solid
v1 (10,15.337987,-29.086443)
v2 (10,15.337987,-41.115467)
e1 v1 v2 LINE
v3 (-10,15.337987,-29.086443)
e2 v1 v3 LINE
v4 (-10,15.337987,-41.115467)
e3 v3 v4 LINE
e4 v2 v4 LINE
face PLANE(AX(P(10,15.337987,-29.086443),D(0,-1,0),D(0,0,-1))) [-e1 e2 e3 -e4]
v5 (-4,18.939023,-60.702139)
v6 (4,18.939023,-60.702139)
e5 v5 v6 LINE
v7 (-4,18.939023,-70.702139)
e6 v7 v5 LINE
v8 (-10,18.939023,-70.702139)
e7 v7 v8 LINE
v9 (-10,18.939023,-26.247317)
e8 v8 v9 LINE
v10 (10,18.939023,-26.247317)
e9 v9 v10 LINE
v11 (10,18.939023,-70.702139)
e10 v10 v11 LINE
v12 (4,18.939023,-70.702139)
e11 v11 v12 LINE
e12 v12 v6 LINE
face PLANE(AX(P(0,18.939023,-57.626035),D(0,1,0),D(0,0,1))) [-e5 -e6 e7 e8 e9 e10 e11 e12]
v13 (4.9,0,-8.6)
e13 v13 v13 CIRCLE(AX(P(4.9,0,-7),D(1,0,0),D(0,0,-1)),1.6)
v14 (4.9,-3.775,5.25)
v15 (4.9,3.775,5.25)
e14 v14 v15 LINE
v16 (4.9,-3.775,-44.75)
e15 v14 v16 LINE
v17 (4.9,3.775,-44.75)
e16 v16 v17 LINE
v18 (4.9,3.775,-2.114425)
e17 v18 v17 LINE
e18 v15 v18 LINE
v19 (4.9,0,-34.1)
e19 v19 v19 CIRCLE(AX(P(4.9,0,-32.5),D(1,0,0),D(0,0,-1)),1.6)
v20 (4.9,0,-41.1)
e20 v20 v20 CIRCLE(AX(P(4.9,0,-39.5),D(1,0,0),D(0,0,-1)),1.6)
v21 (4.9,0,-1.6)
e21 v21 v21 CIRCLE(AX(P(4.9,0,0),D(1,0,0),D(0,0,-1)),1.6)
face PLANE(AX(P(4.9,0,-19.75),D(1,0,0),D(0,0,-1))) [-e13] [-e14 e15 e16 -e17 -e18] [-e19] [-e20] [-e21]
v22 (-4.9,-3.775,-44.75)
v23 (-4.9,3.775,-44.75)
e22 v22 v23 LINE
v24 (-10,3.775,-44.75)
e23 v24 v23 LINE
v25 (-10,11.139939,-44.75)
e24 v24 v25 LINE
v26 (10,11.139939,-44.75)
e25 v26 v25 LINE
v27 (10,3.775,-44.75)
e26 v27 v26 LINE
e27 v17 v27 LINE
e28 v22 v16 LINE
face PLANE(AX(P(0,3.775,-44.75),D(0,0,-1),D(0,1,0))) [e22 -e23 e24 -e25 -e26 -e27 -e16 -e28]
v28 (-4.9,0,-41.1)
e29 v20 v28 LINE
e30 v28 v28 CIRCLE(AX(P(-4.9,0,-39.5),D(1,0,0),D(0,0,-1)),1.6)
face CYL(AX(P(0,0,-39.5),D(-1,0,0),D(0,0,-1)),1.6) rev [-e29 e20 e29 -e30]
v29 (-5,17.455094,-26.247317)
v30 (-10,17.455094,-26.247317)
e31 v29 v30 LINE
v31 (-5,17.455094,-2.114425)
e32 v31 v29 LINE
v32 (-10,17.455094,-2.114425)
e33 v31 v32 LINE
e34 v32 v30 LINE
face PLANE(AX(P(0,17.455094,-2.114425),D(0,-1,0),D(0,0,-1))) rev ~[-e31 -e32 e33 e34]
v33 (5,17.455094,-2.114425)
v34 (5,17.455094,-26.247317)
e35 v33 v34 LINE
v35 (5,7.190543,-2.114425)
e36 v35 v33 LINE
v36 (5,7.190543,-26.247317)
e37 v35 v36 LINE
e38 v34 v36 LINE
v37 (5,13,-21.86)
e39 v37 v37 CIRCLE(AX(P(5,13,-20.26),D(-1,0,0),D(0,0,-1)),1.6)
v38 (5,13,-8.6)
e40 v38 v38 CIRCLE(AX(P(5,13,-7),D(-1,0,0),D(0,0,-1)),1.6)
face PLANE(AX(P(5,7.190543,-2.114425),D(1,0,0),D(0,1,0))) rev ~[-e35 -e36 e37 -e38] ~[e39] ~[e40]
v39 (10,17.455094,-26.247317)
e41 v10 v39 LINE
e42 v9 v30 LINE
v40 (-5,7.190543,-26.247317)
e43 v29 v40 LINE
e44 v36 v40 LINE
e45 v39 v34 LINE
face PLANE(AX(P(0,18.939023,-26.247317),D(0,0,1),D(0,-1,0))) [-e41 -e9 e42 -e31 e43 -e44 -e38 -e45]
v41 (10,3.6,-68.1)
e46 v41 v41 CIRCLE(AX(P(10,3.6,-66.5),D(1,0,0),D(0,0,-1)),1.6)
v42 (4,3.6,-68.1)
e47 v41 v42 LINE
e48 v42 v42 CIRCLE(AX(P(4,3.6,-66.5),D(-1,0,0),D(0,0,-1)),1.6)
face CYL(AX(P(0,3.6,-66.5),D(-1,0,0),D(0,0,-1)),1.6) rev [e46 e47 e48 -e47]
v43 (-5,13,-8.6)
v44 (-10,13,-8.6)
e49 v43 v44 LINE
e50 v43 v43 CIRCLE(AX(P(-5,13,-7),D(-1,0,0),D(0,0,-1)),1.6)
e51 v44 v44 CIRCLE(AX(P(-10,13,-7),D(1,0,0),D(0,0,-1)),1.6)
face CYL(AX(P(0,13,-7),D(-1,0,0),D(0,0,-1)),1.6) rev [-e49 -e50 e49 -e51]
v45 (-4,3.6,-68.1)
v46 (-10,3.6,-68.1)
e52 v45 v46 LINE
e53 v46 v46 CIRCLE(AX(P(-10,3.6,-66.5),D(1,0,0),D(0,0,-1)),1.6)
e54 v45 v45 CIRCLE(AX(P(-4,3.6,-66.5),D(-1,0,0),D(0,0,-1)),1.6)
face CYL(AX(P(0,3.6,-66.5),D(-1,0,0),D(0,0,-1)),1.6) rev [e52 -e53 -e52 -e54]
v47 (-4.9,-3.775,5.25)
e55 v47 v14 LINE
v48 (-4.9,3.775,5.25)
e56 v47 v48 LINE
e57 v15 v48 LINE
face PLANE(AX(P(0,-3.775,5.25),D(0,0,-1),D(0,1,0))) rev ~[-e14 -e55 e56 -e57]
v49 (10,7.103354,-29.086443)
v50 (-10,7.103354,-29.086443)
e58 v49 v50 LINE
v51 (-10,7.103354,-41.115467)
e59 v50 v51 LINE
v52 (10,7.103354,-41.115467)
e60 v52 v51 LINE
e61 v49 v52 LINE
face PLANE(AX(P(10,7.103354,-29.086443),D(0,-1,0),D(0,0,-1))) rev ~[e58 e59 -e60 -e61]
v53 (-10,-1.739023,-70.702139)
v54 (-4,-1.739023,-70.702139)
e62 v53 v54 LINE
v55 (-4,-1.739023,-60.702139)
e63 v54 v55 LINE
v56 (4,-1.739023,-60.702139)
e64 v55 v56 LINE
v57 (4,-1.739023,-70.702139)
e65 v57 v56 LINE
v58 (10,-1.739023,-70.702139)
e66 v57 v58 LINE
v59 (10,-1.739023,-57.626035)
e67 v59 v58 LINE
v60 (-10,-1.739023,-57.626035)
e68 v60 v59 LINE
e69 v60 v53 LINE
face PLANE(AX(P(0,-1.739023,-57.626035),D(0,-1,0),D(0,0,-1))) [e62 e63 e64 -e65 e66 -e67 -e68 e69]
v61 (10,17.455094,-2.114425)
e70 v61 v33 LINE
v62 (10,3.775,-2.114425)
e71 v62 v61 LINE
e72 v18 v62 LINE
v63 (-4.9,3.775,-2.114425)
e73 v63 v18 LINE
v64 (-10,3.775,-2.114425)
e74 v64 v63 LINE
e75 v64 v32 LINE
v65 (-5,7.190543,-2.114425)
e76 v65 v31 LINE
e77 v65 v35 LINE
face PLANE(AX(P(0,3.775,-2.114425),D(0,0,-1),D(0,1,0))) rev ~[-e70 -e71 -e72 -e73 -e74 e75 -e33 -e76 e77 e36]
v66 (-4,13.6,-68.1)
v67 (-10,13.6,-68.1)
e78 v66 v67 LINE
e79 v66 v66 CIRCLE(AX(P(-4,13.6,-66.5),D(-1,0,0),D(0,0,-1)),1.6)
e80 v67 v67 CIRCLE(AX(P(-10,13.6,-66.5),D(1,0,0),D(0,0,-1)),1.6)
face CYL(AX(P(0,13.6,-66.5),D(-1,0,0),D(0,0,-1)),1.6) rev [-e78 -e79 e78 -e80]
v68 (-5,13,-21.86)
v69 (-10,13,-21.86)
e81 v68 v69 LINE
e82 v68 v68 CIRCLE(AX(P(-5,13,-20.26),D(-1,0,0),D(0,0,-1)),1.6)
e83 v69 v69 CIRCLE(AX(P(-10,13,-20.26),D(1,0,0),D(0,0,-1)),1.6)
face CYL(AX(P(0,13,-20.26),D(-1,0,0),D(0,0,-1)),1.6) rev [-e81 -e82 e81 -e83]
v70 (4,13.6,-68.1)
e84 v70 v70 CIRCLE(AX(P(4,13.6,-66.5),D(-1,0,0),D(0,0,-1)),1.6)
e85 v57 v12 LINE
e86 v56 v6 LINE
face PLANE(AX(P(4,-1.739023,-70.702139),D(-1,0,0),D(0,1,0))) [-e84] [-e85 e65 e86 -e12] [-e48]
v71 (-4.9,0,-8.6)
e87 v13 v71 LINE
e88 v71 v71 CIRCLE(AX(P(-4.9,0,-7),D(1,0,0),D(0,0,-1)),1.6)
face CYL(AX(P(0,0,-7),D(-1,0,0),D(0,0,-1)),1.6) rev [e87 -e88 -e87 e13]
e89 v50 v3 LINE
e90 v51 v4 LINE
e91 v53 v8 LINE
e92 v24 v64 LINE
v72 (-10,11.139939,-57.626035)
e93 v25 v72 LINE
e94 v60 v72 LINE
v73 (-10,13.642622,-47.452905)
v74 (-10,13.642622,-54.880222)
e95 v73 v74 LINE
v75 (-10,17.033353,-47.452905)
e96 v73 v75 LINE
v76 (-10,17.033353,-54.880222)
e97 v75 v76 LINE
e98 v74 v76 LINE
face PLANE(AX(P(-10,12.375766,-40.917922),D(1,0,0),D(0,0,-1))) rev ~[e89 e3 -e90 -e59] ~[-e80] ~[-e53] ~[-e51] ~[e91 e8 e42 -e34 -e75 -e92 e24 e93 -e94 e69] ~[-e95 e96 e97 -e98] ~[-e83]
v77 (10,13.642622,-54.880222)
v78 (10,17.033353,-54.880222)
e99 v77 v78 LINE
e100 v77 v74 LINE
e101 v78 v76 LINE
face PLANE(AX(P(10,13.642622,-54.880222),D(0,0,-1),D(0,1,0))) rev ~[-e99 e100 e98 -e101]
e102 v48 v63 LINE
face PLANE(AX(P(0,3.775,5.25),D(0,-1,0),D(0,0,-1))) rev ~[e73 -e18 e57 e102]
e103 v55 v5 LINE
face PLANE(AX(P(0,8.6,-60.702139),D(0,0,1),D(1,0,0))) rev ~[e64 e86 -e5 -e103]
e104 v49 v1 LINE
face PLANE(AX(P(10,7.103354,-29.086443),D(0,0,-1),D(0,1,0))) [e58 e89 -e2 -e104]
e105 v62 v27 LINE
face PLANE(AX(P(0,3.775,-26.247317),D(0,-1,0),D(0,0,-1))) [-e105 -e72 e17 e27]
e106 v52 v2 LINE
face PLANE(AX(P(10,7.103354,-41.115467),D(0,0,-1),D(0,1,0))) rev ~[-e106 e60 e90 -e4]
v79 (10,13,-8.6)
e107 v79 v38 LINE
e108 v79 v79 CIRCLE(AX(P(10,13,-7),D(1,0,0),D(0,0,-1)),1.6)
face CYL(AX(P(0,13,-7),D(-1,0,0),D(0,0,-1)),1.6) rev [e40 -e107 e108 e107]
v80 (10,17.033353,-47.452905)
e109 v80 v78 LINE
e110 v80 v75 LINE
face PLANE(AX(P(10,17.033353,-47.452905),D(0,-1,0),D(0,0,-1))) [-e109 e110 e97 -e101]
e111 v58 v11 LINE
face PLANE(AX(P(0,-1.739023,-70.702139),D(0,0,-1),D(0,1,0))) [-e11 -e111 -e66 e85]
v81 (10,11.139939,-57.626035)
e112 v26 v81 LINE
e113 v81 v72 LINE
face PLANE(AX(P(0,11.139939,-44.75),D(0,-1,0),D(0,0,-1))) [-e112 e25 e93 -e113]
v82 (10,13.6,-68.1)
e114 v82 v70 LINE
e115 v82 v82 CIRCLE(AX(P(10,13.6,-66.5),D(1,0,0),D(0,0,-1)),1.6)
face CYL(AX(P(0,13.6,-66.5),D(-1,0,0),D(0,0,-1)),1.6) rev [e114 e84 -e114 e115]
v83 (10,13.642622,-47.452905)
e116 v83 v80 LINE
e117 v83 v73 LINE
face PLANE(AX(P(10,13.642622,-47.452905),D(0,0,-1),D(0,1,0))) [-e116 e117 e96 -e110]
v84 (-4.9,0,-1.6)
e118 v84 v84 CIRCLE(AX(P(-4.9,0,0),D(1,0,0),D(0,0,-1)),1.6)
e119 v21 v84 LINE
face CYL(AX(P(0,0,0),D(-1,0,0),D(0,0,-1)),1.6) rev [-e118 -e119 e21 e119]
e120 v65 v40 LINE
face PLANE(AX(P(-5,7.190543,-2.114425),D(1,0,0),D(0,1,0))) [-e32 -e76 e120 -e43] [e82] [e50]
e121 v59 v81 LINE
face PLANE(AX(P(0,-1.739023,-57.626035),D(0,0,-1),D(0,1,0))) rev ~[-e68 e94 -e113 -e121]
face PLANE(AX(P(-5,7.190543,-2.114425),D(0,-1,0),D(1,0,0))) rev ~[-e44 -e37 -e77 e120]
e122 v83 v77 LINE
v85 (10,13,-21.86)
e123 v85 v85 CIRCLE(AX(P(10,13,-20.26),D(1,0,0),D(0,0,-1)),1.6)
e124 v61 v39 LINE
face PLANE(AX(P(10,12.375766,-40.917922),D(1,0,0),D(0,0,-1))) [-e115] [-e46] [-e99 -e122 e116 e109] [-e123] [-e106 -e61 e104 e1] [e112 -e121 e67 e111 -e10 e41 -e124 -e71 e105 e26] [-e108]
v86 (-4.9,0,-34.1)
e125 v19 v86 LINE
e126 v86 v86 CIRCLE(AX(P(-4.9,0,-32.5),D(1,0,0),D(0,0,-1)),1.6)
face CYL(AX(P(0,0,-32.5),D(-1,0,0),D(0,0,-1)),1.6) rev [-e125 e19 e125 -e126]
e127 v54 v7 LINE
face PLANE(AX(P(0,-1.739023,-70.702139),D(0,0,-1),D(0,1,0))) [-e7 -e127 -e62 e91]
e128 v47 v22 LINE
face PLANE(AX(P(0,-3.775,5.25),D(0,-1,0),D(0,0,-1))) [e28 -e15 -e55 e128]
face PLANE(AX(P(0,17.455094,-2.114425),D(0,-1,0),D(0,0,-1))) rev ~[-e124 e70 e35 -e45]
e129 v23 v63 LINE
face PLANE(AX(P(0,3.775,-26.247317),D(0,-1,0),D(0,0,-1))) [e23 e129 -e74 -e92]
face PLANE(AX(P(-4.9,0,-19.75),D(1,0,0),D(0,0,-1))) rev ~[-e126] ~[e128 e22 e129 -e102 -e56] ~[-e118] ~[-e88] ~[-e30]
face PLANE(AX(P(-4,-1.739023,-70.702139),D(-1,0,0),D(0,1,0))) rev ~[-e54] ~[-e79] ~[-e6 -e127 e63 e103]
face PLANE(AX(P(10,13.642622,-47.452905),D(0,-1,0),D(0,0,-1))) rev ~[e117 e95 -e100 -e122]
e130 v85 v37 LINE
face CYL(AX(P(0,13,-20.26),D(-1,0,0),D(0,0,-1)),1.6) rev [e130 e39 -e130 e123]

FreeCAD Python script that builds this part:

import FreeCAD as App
import Part
import Sketcher
from FreeCAD import Vector
Q = App.Units.Quantity


def add_polygon(sketch, points):
    """Adds a closed chain of lines whose ends are joined by coincident constraints."""
    first, n = sketch.GeometryCount, len(points)
    for a, b in zip(points, points[1:] + points[:1]):
        sketch.addGeometry(Part.LineSegment(App.Vector(*a, 0), App.Vector(*b, 0)), False)
    for i in range(n):
        sketch.addConstraint(Sketcher.Constraint("Coincident", first + i, 2, first + (i + 1) % n, 1))

doc = App.newDocument("Part")
body = doc.addObject("PartDesign::Body", "Body")

# Sketch on YZ plane
sketch1 = doc.addObject("Sketcher::SketchObject", "Sketch")
body.addObject(sketch1)
sketch1.AttachmentSupport = (doc.YZ_Plane, [""])
sketch1.MapMode = "FlatFace"
add_polygon(sketch1, [(3.8, 5.2), (-3.8, 5.2), (-3.8, -44.8), (3.8, -44.8)])  # lines 0-3
sketch1.addGeometry(Part.Circle(Vector(0, 0, 0), Vector(0, 0, 1), 1.6), False)  # 4
sketch1.addGeometry(Part.Circle(Vector(0, -7, 0), Vector(0, 0, 1), 1.6), False)  # 5
sketch1.addGeometry(Part.Circle(Vector(0, -32.5, 0), Vector(0, 0, 1), 1.6), False)  # 6
sketch1.addGeometry(Part.Circle(Vector(0, -39.5, 0), Vector(0, 0, 1), 1.6), False)  # 7
sketch1.addConstraint([
    Sketcher.Constraint("Horizontal", 0),
    Sketcher.Constraint("Vertical", 1),
    Sketcher.Constraint("Horizontal", 2),
    Sketcher.Constraint("Vertical", 3),
    Sketcher.Constraint("Coincident", 4, 3, -1, 1),
    Sketcher.Constraint("Equal", 4, 5),
    Sketcher.Constraint("Equal", 5, 6),
    Sketcher.Constraint("Equal", 6, 7),
    Sketcher.Constraint("PointOnObject", 5, 3, -2),
    Sketcher.Constraint("PointOnObject", 6, 3, -2),
    Sketcher.Constraint("PointOnObject", 7, 3, -2),
    Sketcher.Constraint("Diameter", 4, Q("3.2 mm")),
    Sketcher.Constraint("DistanceY", 1, 2, 1, 1, Q("50 mm")),
    Sketcher.Constraint("DistanceY", 5, 3, -1, 1, Q("7 mm")),
    Sketcher.Constraint("DistanceY", 7, 3, 6, 3, Q("7 mm")),
    Sketcher.Constraint("DistanceX", 0, 2, 0, 1, Q("7.55 mm")),
    Sketcher.Constraint("DistanceY", 6, 3, -1, 1, Q("32.5 mm")),
    Sketcher.Constraint("DistanceY", -1, 1, 0, 2, Q("5.25 mm")),
    Sketcher.Constraint("DistanceX", 0, 2, -1, 1, Q("3.775 mm")),
])
pad1 = doc.addObject("PartDesign::Pad", "Pad")
body.addObject(pad1)
pad1.Profile = sketch1
pad1.Length = 9.8
pad1.Midplane = True

# Sketch on YZ plane
sketch2 = doc.addObject("Sketcher::SketchObject", "Sketch001")
body.addObject(sketch2)
sketch2.AttachmentSupport = (doc.YZ_Plane, [""])
sketch2.MapMode = "FlatFace"
add_polygon(sketch2, [(17.5, -2.1), (3.8, -2.1), (3.8, -26.2), (17.5, -26.2)])  # lines 0-3
sketch2.addGeometry(Part.Circle(Vector(13, -7, 0), Vector(0, 0, 1), 1.6), False)  # 4
sketch2.addGeometry(Part.Circle(Vector(13, -20.3, 0), Vector(0, 0, 1), 1.6), False)  # 5
sketch2.addConstraint([
    Sketcher.Constraint("Horizontal", 0),
    Sketcher.Constraint("Vertical", 1),
    Sketcher.Constraint("Horizontal", 2),
    Sketcher.Constraint("Vertical", 3),
    Sketcher.Constraint("Equal", 4, 5),
    Sketcher.Constraint("Vertical", 4, 3, 5, 3),
    Sketcher.Constraint("Diameter", 4, Q("3.2 mm")),
    Sketcher.Constraint("DistanceX", -1, 1, 4, 3, Q("13 mm")),
    Sketcher.Constraint("DistanceY", 4, 3, -1, 1, Q("7 mm")),
    Sketcher.Constraint("DistanceY", 5, 3, -1, 1, Q("20.26 mm")),
    Sketcher.Constraint("DistanceX", -1, 1, 0, 2, Q("3.775 mm")),
    Sketcher.Constraint("DistanceY", 1, 2, 1, 1, Q("24.132892 mm")),
    Sketcher.Constraint("DistanceX", 0, 2, 0, 1, Q("13.680094 mm")),
    Sketcher.Constraint("DistanceY", 0, 2, -1, 1, Q("2.114425 mm")),
])
pad2 = doc.addObject("PartDesign::Pad", "Pad001")
body.addObject(pad2)
pad2.Profile = sketch2
pad2.Length = 20
pad2.Midplane = True

# Sketch on XY plane
sketch3 = doc.addObject("Sketcher::SketchObject", "Sketch002")
body.addObject(sketch3)
sketch3.AttachmentSupport = (doc.XY_Plane, [""])
sketch3.MapMode = "FlatFace"
sketch3.AttachmentOffset = App.Placement(Vector(0, 0, -2.114425), App.Rotation())
add_polygon(sketch3, [(-5, 17), (-5, 7), (5, 7), (5, 17)])  # lines 0-3
sketch3.addConstraint([
    Sketcher.Constraint("Vertical", 0),
    Sketcher.Constraint("Horizontal", 1),
    Sketcher.Constraint("Vertical", 2),
    Sketcher.Constraint("Horizontal", 3),
    Sketcher.Constraint("DistanceX", 1, 1, 1, 2, Q("10 mm")),
    Sketcher.Constraint("DistanceX", 0, 2, -1, 1, Q("5 mm")),
    Sketcher.Constraint("DistanceY", 0, 2, 0, 1, Q("10.264551 mm")),
    Sketcher.Constraint("DistanceY", -1, 1, 0, 2, Q("7.190543 mm")),
])
pocket1 = doc.addObject("PartDesign::Pocket", "Pocket")
body.addObject(pocket1)
pocket1.Profile = sketch3
pocket1.Type = "ThroughAll"
body2 = doc.addObject("PartDesign::Body", "Body001")

# Sketch on YZ plane
sketch4 = doc.addObject("Sketcher::SketchObject", "Sketch003")
body2.addObject(sketch4)
sketch4.AttachmentSupport = (doc.getObject("YZ_Plane001"), [""])
sketch4.MapMode = "FlatFace"
add_polygon(sketch4, [(18.9, -57.6), (-1.7, -57.6), (-1.7, -70.7), (18.9, -70.7)])  # lines 0-3
sketch4.addGeometry(Part.Circle(Vector(3.6, -66.5, 0), Vector(0, 0, 1), 1.6), False)  # 4
sketch4.addGeometry(Part.Circle(Vector(13.6, -66.5, 0), Vector(0, 0, 1), 1.6), False)  # 5
sketch4.addConstraint([
    Sketcher.Constraint("Horizontal", 0),
    Sketcher.Constraint("Vertical", 1),
    Sketcher.Constraint("Horizontal", 2),
    Sketcher.Constraint("Vertical", 3),
    Sketcher.Constraint("Equal", 4, 5),
    Sketcher.Constraint("Horizontal", 4, 3, 5, 3),
    Sketcher.Constraint("Diameter", 4, Q("3.2 mm")),
    Sketcher.Constraint("DistanceX", 4, 3, 5, 3, Q("10 mm")),
    Sketcher.Constraint("DistanceX", -1, 1, 4, 3, Q("3.6 mm")),
    Sketcher.Constraint("DistanceY", 4, 3, -1, 1, Q("66.5 mm")),
    Sketcher.Constraint("DistanceX", 0, 2, 0, 1, Q("20.678046 mm")),
    Sketcher.Constraint("DistanceY", 1, 2, 1, 1, Q("13.076103 mm")),
    Sketcher.Constraint("DistanceY", 1, 2, -1, 1, Q("70.702139 mm")),
    Sketcher.Constraint("DistanceX", 0, 2, -1, 1, Q("1.739023 mm")),
])
pad3 = doc.addObject("PartDesign::Pad", "Pad002")
body2.addObject(pad3)
pad3.Profile = sketch4
pad3.Length = 20
pad3.Midplane = True

# Sketch on XY plane
sketch5 = doc.addObject("Sketcher::SketchObject", "Sketch004")
body2.addObject(sketch5)
sketch5.AttachmentSupport = (doc.getObject("XY_Plane001"), [""])
sketch5.MapMode = "FlatFace"
sketch5.AttachmentOffset = App.Placement(Vector(0, 0, -70.702139), App.Rotation())
add_polygon(sketch5, [(-4, 19), (-4, -2), (4, -2), (4, 19)])  # lines 0-3
sketch5.addConstraint([
    Sketcher.Constraint("Vertical", 0),
    Sketcher.Constraint("Horizontal", 1),
    Sketcher.Constraint("Vertical", 2),
    Sketcher.Constraint("Horizontal", 3),
    Sketcher.Constraint("DistanceX", 1, 1, 1, 2, Q("8 mm")),
    Sketcher.Constraint("DistanceX", 0, 2, -1, 1, Q("4 mm")),
    Sketcher.Constraint("DistanceY", 0, 2, 0, 1, Q("20.678046 mm")),
    Sketcher.Constraint("DistanceY", 0, 2, -1, 1, Q("1.739023 mm")),
])
pocket2 = doc.addObject("PartDesign::Pocket", "Pocket001")
body2.addObject(pocket2)
pocket2.Profile = sketch5
pocket2.Length = 10
pocket2.Reversed = True
body.AllowCompound = True
doc.recompute()

boolean = doc.addObject("PartDesign::Boolean", "Boolean")
body.addObject(boolean)
boolean.Type = "Fuse"
boolean.addObjects([body2])

# Sketch on YZ plane
sketch6 = doc.addObject("Sketcher::SketchObject", "Sketch005")
body.addObject(sketch6)
sketch6.AttachmentSupport = (doc.YZ_Plane, [""])
sketch6.MapMode = "FlatFace"
add_polygon(sketch6, [(19, -58), (19, -26), (4, -26), (4, -45), (11, -45), (11, -58)])  # lines 0-5
sketch6.addConstraint([
    Sketcher.Constraint("Vertical", 0),
    Sketcher.Constraint("Horizontal", 1),
    Sketcher.Constraint("Vertical", 2),
    Sketcher.Constraint("Horizontal", 3),
    Sketcher.Constraint("Vertical", 4),
    Sketcher.Constraint("Horizontal", 5),
    Sketcher.Constraint("DistanceY", 2, 2, -1, 1, Q("44.75 mm")),
    Sketcher.Constraint("DistanceX", -1, 1, 1, 2, Q("3.775 mm")),
    Sketcher.Constraint("DistanceX", 3, 1, 3, 2, Q("7.364939 mm")),
    Sketcher.Constraint("DistanceY", 0, 1, 0, 2, Q("31.378718 mm")),
    Sketcher.Constraint("DistanceX", 1, 2, 1, 1, Q("15.164023 mm")),
    Sketcher.Constraint("DistanceY", 2, 2, 2, 1, Q("18.502683 mm")),
])
pad4 = doc.addObject("PartDesign::Pad", "Pad003")
body.addObject(pad4)
pad4.Profile = sketch6
pad4.Length = 20
pad4.Midplane = True

# Sketch on YZ plane
sketch7 = doc.addObject("Sketcher::SketchObject", "Sketch006")
body.addObject(sketch7)
sketch7.AttachmentSupport = (doc.YZ_Plane, [""])
sketch7.MapMode = "FlatFace"
sketch7.AttachmentOffset = App.Placement(Vector(0, 0, 10), App.Rotation())
add_polygon(sketch7, [(15.3, -29.1), (7.1, -29.1), (7.1, -41.1), (15.3, -41.1)])  # lines 0-3
add_polygon(sketch7, [(17, -47.5), (13.6, -47.5), (13.6, -54.9), (17, -54.9)])  # lines 4-7
sketch7.addConstraint([
    Sketcher.Constraint("Horizontal", 0),
    Sketcher.Constraint("Vertical", 1),
    Sketcher.Constraint("Horizontal", 2),
    Sketcher.Constraint("Vertical", 3),
    Sketcher.Constraint("Horizontal", 4),
    Sketcher.Constraint("Vertical", 5),
    Sketcher.Constraint("Horizontal", 6),
    Sketcher.Constraint("Vertical", 7),
    Sketcher.Constraint("DistanceX", 1, 2, 6, 2, Q("9.929999 mm")),
    Sketcher.Constraint("DistanceX", 4, 2, 4, 1, Q("3.390731 mm")),
    Sketcher.Constraint("DistanceX", 0, 2, 0, 1, Q("8.234634 mm")),
    Sketcher.Constraint("DistanceY", 1, 2, 1, 1, Q("12.029023 mm")),
    Sketcher.Constraint("DistanceY", 5, 2, 5, 1, Q("7.427316 mm")),
    Sketcher.Constraint("DistanceX", -1, 1, 4, 2, Q("13.642622 mm")),
    Sketcher.Constraint("DistanceY", 5, 2, -1, 1, Q("54.880222 mm")),
    Sketcher.Constraint("DistanceY", 4, 2, 2, 2, Q("6.337439 mm")),
])
pocket3 = doc.addObject("PartDesign::Pocket", "Pocket002")
body.addObject(pocket3)
pocket3.Profile = sketch7
pocket3.Type = "ThroughAll"

doc.recompute()
